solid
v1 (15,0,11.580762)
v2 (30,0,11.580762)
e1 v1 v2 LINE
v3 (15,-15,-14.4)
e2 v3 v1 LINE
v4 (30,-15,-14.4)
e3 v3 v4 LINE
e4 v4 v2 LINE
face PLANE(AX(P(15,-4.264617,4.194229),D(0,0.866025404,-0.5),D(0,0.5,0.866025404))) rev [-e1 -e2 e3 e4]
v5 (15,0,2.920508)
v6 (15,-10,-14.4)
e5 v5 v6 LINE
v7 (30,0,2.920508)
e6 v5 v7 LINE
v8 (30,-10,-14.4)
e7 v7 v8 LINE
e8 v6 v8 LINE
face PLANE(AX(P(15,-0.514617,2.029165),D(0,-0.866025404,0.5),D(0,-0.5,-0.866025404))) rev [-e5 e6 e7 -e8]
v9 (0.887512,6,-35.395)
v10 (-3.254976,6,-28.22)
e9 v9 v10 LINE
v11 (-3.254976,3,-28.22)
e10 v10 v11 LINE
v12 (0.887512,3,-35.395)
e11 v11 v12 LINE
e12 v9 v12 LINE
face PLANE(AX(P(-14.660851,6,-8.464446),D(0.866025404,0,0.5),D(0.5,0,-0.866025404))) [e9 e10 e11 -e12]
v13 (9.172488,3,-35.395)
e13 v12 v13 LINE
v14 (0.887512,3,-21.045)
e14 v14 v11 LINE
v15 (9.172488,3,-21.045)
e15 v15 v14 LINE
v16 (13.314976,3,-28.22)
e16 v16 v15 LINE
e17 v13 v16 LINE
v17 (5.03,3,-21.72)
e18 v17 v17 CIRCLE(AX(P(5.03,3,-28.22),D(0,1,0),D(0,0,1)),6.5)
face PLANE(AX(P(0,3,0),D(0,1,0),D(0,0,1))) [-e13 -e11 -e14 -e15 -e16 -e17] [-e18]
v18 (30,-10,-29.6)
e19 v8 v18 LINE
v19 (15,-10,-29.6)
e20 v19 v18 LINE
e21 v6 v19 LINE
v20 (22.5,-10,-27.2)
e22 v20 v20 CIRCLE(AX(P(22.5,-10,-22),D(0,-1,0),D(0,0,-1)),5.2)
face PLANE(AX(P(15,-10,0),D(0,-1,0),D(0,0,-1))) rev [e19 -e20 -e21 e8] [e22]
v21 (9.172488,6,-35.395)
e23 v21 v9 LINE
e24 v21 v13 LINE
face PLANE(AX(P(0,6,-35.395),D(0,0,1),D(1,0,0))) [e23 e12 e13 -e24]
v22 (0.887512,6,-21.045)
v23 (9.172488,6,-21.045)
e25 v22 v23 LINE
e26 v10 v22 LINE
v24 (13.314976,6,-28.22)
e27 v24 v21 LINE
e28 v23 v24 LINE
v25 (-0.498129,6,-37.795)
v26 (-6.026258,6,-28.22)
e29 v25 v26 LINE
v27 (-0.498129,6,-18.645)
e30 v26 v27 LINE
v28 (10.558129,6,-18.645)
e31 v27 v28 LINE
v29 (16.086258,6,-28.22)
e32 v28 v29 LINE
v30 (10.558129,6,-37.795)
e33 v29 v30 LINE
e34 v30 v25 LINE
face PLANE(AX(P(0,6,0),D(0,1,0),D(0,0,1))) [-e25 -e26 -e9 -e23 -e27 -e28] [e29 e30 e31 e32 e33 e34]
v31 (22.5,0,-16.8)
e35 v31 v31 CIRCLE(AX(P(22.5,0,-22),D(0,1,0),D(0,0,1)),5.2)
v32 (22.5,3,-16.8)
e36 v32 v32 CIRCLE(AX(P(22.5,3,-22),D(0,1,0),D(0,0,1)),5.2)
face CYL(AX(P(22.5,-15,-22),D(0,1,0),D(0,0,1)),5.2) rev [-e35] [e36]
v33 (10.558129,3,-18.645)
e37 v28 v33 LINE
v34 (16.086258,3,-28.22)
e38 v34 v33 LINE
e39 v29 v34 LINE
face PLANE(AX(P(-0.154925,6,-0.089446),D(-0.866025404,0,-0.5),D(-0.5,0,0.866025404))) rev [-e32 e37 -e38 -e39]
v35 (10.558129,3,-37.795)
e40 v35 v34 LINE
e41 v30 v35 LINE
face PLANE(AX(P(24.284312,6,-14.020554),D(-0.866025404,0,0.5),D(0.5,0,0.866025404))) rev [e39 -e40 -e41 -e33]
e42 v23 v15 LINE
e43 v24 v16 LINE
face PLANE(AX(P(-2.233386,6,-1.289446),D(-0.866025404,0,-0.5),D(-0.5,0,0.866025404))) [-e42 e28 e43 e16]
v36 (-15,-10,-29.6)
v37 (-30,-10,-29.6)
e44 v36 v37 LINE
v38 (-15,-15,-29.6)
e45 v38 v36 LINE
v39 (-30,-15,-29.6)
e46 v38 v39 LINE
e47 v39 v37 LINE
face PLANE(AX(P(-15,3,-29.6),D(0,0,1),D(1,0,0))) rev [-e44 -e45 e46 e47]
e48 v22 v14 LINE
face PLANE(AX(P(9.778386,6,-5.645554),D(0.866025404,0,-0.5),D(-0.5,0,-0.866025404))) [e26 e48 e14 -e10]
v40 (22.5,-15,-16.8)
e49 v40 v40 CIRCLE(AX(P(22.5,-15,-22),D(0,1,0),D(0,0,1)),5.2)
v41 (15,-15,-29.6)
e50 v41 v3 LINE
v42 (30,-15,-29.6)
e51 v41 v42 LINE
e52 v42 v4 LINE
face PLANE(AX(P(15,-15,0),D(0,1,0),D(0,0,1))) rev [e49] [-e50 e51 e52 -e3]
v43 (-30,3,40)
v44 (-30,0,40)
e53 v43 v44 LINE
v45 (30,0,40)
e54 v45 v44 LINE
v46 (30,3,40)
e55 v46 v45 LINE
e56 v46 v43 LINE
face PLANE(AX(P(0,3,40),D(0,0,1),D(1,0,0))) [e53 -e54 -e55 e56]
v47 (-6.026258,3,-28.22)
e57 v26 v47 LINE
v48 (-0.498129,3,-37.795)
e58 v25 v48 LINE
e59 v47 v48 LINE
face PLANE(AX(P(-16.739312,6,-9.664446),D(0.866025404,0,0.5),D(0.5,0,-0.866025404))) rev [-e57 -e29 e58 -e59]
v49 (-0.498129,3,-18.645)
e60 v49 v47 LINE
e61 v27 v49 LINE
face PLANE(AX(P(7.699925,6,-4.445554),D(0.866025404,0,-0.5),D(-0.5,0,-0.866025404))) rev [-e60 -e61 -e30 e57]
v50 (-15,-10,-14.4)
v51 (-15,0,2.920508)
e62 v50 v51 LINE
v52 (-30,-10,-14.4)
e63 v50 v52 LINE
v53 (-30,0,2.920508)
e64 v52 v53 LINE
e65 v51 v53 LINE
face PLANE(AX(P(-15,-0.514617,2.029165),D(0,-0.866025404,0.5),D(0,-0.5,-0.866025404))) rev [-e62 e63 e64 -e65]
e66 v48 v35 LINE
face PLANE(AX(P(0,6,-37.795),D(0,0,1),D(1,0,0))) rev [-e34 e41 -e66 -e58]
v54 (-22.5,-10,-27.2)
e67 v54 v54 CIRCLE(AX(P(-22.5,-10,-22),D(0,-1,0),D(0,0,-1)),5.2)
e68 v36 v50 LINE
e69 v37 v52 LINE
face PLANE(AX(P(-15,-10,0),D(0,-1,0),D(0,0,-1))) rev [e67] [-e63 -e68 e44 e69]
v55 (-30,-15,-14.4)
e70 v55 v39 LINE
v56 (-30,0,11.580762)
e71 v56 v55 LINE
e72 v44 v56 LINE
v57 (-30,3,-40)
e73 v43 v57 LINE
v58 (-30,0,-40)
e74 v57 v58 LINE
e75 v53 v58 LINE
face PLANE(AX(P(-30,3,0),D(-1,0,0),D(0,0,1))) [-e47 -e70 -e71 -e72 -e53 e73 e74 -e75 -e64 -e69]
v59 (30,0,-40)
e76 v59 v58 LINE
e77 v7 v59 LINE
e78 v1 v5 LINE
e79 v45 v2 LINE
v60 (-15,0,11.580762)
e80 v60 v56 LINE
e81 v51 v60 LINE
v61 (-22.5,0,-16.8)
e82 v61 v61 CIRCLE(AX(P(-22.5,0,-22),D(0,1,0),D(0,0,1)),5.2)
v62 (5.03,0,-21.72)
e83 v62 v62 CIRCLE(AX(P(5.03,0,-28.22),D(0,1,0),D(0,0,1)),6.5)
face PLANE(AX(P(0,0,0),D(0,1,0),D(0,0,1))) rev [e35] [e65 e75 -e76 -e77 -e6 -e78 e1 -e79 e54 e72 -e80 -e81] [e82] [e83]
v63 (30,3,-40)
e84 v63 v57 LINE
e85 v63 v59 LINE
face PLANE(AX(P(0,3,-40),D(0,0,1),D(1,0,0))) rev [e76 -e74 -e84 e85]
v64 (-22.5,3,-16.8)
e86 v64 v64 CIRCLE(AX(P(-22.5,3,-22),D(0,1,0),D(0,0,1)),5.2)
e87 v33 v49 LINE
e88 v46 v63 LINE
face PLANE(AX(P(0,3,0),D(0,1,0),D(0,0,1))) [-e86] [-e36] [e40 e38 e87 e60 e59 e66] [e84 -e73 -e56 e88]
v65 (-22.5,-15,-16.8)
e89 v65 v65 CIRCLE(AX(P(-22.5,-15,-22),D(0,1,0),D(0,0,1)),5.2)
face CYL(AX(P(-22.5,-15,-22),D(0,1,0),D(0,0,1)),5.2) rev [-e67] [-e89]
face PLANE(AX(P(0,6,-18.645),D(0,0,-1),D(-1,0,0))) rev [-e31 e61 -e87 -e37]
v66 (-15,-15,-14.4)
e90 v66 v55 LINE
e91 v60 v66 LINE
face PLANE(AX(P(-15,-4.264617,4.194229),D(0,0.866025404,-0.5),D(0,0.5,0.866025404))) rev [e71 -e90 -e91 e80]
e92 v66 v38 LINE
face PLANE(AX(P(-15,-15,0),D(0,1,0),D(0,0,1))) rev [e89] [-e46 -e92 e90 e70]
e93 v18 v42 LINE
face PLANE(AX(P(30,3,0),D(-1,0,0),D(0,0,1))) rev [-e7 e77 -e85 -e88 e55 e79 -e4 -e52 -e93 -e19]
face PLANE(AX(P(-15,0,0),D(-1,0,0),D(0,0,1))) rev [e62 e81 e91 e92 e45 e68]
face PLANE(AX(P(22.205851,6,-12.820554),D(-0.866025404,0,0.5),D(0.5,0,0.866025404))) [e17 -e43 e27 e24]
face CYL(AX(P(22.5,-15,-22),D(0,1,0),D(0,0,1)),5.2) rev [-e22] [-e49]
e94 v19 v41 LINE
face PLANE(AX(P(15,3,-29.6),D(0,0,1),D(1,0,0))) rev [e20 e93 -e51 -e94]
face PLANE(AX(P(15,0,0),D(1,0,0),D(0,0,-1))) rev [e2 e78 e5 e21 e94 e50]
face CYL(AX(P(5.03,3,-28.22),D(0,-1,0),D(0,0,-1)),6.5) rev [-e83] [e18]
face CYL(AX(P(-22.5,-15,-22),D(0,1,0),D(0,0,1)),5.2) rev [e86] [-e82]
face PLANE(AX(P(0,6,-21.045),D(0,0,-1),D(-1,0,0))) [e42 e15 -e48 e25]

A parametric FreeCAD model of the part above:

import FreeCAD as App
import Part
import Sketcher
Q = App.Units.Quantity

doc = App.newDocument("Part")
body = doc.addObject("PartDesign::Body", "Body")

# Sketch on XZ plane
sketch1 = body.newObject("Sketcher::SketchObject", "Sketch")
sketch1.AttachmentSupport = (doc.getObject("XZ_Plane"), [""])
sketch1.MapMode = "FlatFace"
sketch1.addGeometry(Part.LineSegment(App.Vector(-30, -40, 0), App.Vector(-30, 40, 0)), False)
sketch1.addGeometry(Part.LineSegment(App.Vector(-30, 40, 0), App.Vector(30, 40, 0)), False)
sketch1.addGeometry(Part.LineSegment(App.Vector(30, 40, 0), App.Vector(30, -40, 0)), False)
sketch1.addGeometry(Part.LineSegment(App.Vector(30, -40, 0), App.Vector(-30, -40, 0)), False)
sketch1.addGeometry(Part.Circle(App.Vector(5, -28, 0), App.Vector(0, 0, 1), 6), False)
sketch1.addConstraint(Sketcher.Constraint("Coincident", 0, 2, 1, 1))
sketch1.addConstraint(Sketcher.Constraint("Coincident", 1, 2, 2, 1))
sketch1.addConstraint(Sketcher.Constraint("Coincident", 2, 2, 3, 1))
sketch1.addConstraint(Sketcher.Constraint("Coincident", 3, 2, 0, 1))
sketch1.addConstraint(Sketcher.Constraint("Vertical", 0))
sketch1.addConstraint(Sketcher.Constraint("Horizontal", 1))
sketch1.addConstraint(Sketcher.Constraint("Vertical", 2))
sketch1.addConstraint(Sketcher.Constraint("Horizontal", 3))
sketch1.addConstraint(Sketcher.Constraint("Symmetric", 0, 2, 2, 2, -1, 1))
sketch1.addConstraint(Sketcher.Constraint("Diameter", 4, Q("13 mm")))
sketch1.addConstraint(Sketcher.Constraint("DistanceX", 1, 1, 1, 2, Q("60 mm")))
sketch1.addConstraint(Sketcher.Constraint("DistanceY", 0, 1, 0, 2, Q("80 mm")))
sketch1.addConstraint(Sketcher.Constraint("DistanceX", -1, 1, 4, 3, Q("5.03 mm")))
sketch1.addConstraint(Sketcher.Constraint("DistanceY", 4, 3, -1, 1, Q("28.22 mm")))
pad1 = body.newObject("PartDesign::Pad", "Pad")
pad1.Profile = sketch1
pad1.Length = 3
pad1.Reversed = True

# Sketch on YZ plane
sketch2 = body.newObject("Sketcher::SketchObject", "Sketch001")
sketch2.AttachmentSupport = (doc.getObject("YZ_Plane"), [""])
sketch2.MapMode = "FlatFace"
sketch2.AttachmentOffset = App.Placement(App.Vector(0, 0, 30), App.Rotation())
sketch2.addGeometry(Part.LineSegment(App.Vector(0, 3, 0), App.Vector(0, 12, 0)), False)
sketch2.addGeometry(Part.LineSegment(App.Vector(0, 12, 0), App.Vector(-15, -14, 0)), False)
sketch2.addGeometry(Part.LineSegment(App.Vector(-15, -14, 0), App.Vector(-15, -30, 0)), False)
sketch2.addGeometry(Part.LineSegment(App.Vector(-15, -30, 0), App.Vector(-10, -30, 0)), False)
sketch2.addGeometry(Part.LineSegment(App.Vector(-10, -30, 0), App.Vector(-10, -14, 0)), False)
sketch2.addGeometry(Part.LineSegment(App.Vector(-10, -14, 0), App.Vector(0, 3, 0)), False)
sketch2.addConstraint(Sketcher.Constraint("Coincident", 0, 2, 1, 1))
sketch2.addConstraint(Sketcher.Constraint("Coincident", 1, 2, 2, 1))
sketch2.addConstraint(Sketcher.Constraint("Coincident", 2, 2, 3, 1))
sketch2.addConstraint(Sketcher.Constraint("Coincident", 3, 2, 4, 1))
sketch2.addConstraint(Sketcher.Constraint("Coincident", 4, 2, 5, 1))
sketch2.addConstraint(Sketcher.Constraint("Coincident", 5, 2, 0, 1))
sketch2.addConstraint(Sketcher.Constraint("Vertical", 0))
sketch2.addConstraint(Sketcher.Constraint("Vertical", 2))
sketch2.addConstraint(Sketcher.Constraint("Horizontal", 3))
sketch2.addConstraint(Sketcher.Constraint("Vertical", 4))
sketch2.addConstraint(Sketcher.Constraint("PointOnObject", 0, 2, -2))
sketch2.addConstraint(Sketcher.Constraint("Parallel", 1, 5))
sketch2.addConstraint(Sketcher.Constraint("Horizontal", 1, 2, 4, 2))
sketch2.addConstraint(Sketcher.Constraint("DistanceX", 3, 1, 3, 2, Q("5 mm")))
sketch2.addConstraint(Sketcher.Constraint("Angle", 1, Q("-120 deg")))
sketch2.addConstraint(Sketcher.Constraint("Distance", 1, Q("30 mm")))
sketch2.addConstraint(Sketcher.Constraint("DistanceY", 2, 2, 2, 1, Q("15.2 mm")))
sketch2.addConstraint(Sketcher.Constraint("DistanceY", 1, 2, -1, 1, Q("14.4 mm")))
pad2 = body.newObject("PartDesign::Pad", "Pad001")
pad2.Profile = sketch2
pad2.Length = 15
pad2.Reversed = True

# Sketch on YZ plane
sketch3 = body.newObject("Sketcher::SketchObject", "Sketch002")
sketch3.AttachmentSupport = (doc.getObject("YZ_Plane"), [""])
sketch3.MapMode = "FlatFace"
sketch3.AttachmentOffset = App.Placement(App.Vector(0, 0, -30), App.Rotation())
sketch3.addGeometry(Part.LineSegment(App.Vector(0, 3, 0), App.Vector(0, 12, 0)), False)
sketch3.addGeometry(Part.LineSegment(App.Vector(0, 12, 0), App.Vector(-15, -14, 0)), False)
sketch3.addGeometry(Part.LineSegment(App.Vector(-15, -14, 0), App.Vector(-15, -30, 0)), False)
sketch3.addGeometry(Part.LineSegment(App.Vector(-15, -30, 0), App.Vector(-10, -30, 0)), False)
sketch3.addGeometry(Part.LineSegment(App.Vector(-10, -30, 0), App.Vector(-10, -14, 0)), False)
sketch3.addGeometry(Part.LineSegment(App.Vector(-10, -14, 0), App.Vector(0, 3, 0)), False)
sketch3.addConstraint(Sketcher.Constraint("Coincident", 0, 2, 1, 1))
sketch3.addConstraint(Sketcher.Constraint("Coincident", 1, 2, 2, 1))
sketch3.addConstraint(Sketcher.Constraint("Coincident", 2, 2, 3, 1))
sketch3.addConstraint(Sketcher.Constraint("Coincident", 3, 2, 4, 1))
sketch3.addConstraint(Sketcher.Constraint("Coincident", 4, 2, 5, 1))
sketch3.addConstraint(Sketcher.Constraint("Coincident", 5, 2, 0, 1))
sketch3.addConstraint(Sketcher.Constraint("Vertical", 0))
sketch3.addConstraint(Sketcher.Constraint("Vertical", 2))
sketch3.addConstraint(Sketcher.Constraint("Horizontal", 3))
sketch3.addConstraint(Sketcher.Constraint("Vertical", 4))
sketch3.addConstraint(Sketcher.Constraint("PointOnObject", 0, 2, -2))
sketch3.addConstraint(Sketcher.Constraint("Parallel", 1, 5))
sketch3.addConstraint(Sketcher.Constraint("Horizontal", 1, 2, 4, 2))
sketch3.addConstraint(Sketcher.Constraint("DistanceX", 3, 1, 3, 2, Q("5 mm")))
sketch3.addConstraint(Sketcher.Constraint("Angle", 1, Q("-120 deg")))
sketch3.addConstraint(Sketcher.Constraint("Distance", 1, Q("30 mm")))
sketch3.addConstraint(Sketcher.Constraint("DistanceY", 2, 2, 2, 1, Q("15.2 mm")))
sketch3.addConstraint(Sketcher.Constraint("DistanceY", 1, 2, -1, 1, Q("14.4 mm")))
pad3 = body.newObject("PartDesign::Pad", "Pad002")
pad3.Profile = sketch3
pad3.Length = 15

# Sketch on XZ plane
sketch4 = body.newObject("Sketcher::SketchObject", "Sketch003")
sketch4.AttachmentSupport = (doc.getObject("XZ_Plane"), [""])
sketch4.MapMode = "FlatFace"
sketch4.addGeometry(Part.LineSegment(App.Vector(-6, -28, 0), App.Vector(0, -19, 0)), False)
sketch4.addGeometry(Part.LineSegment(App.Vector(0, -19, 0), App.Vector(11, -19, 0)), False)
sketch4.addGeometry(Part.LineSegment(App.Vector(11, -19, 0), App.Vector(16, -28, 0)), False)
sketch4.addGeometry(Part.LineSegment(App.Vector(16, -28, 0), App.Vector(11, -38, 0)), False)
sketch4.addGeometry(Part.LineSegment(App.Vector(11, -38, 0), App.Vector(0, -38, 0)), False)
sketch4.addGeometry(Part.LineSegment(App.Vector(0, -38, 0), App.Vector(-6, -28, 0)), False)
sketch4.addGeometry(Part.LineSegment(App.Vector(1, -35, 0), App.Vector(9, -35, 0)), False)
sketch4.addGeometry(Part.LineSegment(App.Vector(9, -35, 0), App.Vector(13, -28, 0)), False)
sketch4.addGeometry(Part.LineSegment(App.Vector(13, -28, 0), App.Vector(9, -21, 0)), False)
sketch4.addGeometry(Part.LineSegment(App.Vector(9, -21, 0), App.Vector(1, -21, 0)), False)
sketch4.addGeometry(Part.LineSegment(App.Vector(1, -21, 0), App.Vector(-3, -28, 0)), False)
sketch4.addGeometry(Part.LineSegment(App.Vector(-3, -28, 0), App.Vector(1, -35, 0)), False)
sketch4.addConstraint(Sketcher.Constraint("Coincident", 0, 2, 1, 1))
sketch4.addConstraint(Sketcher.Constraint("Coincident", 1, 2, 2, 1))
sketch4.addConstraint(Sketcher.Constraint("Coincident", 2, 2, 3, 1))
sketch4.addConstraint(Sketcher.Constraint("Coincident", 3, 2, 4, 1))
sketch4.addConstraint(Sketcher.Constraint("Coincident", 4, 2, 5, 1))
sketch4.addConstraint(Sketcher.Constraint("Coincident", 5, 2, 0, 1))
sketch4.addConstraint(Sketcher.Constraint("Coincident", 6, 2, 7, 1))
sketch4.addConstraint(Sketcher.Constraint("Coincident", 7, 2, 8, 1))
sketch4.addConstraint(Sketcher.Constraint("Coincident", 8, 2, 9, 1))
sketch4.addConstraint(Sketcher.Constraint("Coincident", 9, 2, 10, 1))
sketch4.addConstraint(Sketcher.Constraint("Coincident", 10, 2, 11, 1))
sketch4.addConstraint(Sketcher.Constraint("Coincident", 11, 2, 6, 1))
sketch4.addConstraint(Sketcher.Constraint("Horizontal", 1))
sketch4.addConstraint(Sketcher.Constraint("Horizontal", 4))
sketch4.addConstraint(Sketcher.Constraint("Horizontal", 6))
sketch4.addConstraint(Sketcher.Constraint("Horizontal", 9))
sketch4.addConstraint(Sketcher.Constraint("Parallel", 0, 3))
sketch4.addConstraint(Sketcher.Constraint("Parallel", 2, 5))
sketch4.addConstraint(Sketcher.Constraint("Parallel", 3, 7))
sketch4.addConstraint(Sketcher.Constraint("Parallel", 5, 8))
sketch4.addConstraint(Sketcher.Constraint("Parallel", 7, 10))
sketch4.addConstraint(Sketcher.Constraint("Parallel", 8, 11))
sketch4.addConstraint(Sketcher.Constraint("Horizontal", 2, 2, 5, 2))
sketch4.addConstraint(Sketcher.Constraint("Horizontal", 5, 2, 7, 2))
sketch4.addConstraint(Sketcher.Constraint("Horizontal", 7, 2, 10, 2))
sketch4.addConstraint(Sketcher.Constraint("Vertical", 1, 2, 3, 2))
sketch4.addConstraint(Sketcher.Constraint("Vertical", 0, 2, 4, 2))
sketch4.addConstraint(Sketcher.Constraint("Vertical", 6, 2, 8, 2))
sketch4.addConstraint(Sketcher.Constraint("Angle", 0, Q("60 deg")))
sketch4.addConstraint(Sketcher.Constraint("DistanceY", 3, 2, 6, 2, Q("2.4 mm")))
sketch4.addConstraint(Sketcher.Constraint("DistanceY", 2, 2, -1, 1, Q("28.22 mm")))
sketch4.addConstraint(Sketcher.Constraint("DistanceY", 3, 2, 1, 2, Q("19.15 mm")))
sketch4.addConstraint(Sketcher.Constraint("DistanceX", 1, 1, 1, 2, Q("11.056258 mm")))
sketch4.addConstraint(Sketcher.Constraint("DistanceX", 6, 1, 6, 2, Q("8.284976 mm")))
sketch4.addConstraint(Sketcher.Constraint("DistanceX", 0, 2, -1, 1, Q("0.498129 mm")))
sketch4.addConstraint(Sketcher.Constraint("DistanceX", -1, 1, 6, 2, Q("9.172488 mm")))
pad4 = body.newObject("PartDesign::Pad", "Pad003")
pad4.Profile = sketch4
pad4.Length = 6
pad4.Reversed = True

# Sketch on XZ plane
sketch5 = body.newObject("Sketcher::SketchObject", "Sketch004")
sketch5.AttachmentSupport = (doc.getObject("XZ_Plane"), [""])
sketch5.MapMode = "FlatFace"
sketch5.addGeometry(Part.Circle(App.Vector(-22, -22, 0), App.Vector(0, 0, 1), 5), False)
sketch5.addGeometry(Part.Circle(App.Vector(22, -22, 0), App.Vector(0, 0, 1), 5), False)
sketch5.addConstraint(Sketcher.Constraint("Equal", 0, 1))
sketch5.addConstraint(Sketcher.Constraint("Symmetric", 0, 3, 1, 3, -2))
sketch5.addConstraint(Sketcher.Constraint("Diameter", 0, Q("10.4 mm")))
sketch5.addConstraint(Sketcher.Constraint("DistanceY", 0, 3, -1, 1, Q("22 mm")))
sketch5.addConstraint(Sketcher.Constraint("DistanceX", 0, 3, 1, 3, Q("45 mm")))
pocket1 = body.newObject("PartDesign::Pocket", "Pocket")
pocket1.Profile = sketch5
pocket1.Type = "ThroughAll"
pocket1.Midplane = True

doc.recompute()
